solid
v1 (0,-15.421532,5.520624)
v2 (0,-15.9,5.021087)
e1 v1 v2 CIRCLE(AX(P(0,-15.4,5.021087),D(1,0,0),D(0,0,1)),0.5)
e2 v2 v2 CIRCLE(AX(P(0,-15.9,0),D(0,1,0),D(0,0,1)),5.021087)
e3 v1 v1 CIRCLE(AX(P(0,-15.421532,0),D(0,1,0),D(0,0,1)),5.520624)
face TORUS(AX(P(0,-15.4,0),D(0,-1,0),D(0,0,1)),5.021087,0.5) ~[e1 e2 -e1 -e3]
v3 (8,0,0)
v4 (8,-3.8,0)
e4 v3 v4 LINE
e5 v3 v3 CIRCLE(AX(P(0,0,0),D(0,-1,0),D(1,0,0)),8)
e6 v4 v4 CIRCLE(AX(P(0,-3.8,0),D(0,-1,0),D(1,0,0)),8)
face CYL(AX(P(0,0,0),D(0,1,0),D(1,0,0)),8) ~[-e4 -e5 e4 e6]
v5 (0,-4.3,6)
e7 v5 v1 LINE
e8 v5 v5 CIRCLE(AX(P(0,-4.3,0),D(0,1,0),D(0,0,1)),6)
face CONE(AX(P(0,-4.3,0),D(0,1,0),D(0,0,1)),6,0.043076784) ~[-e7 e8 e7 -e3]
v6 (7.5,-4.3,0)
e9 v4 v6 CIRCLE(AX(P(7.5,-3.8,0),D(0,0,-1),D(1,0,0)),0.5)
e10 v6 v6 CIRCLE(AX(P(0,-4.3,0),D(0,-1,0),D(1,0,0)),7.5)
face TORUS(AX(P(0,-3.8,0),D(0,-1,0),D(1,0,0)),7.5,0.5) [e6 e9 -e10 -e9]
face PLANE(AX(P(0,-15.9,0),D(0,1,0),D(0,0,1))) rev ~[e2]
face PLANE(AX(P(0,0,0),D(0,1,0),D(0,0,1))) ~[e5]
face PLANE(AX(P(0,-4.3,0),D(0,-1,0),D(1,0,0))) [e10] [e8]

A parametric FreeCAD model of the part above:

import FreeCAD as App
import Part
import Sketcher
from FreeCAD import Vector
Q = App.Units.Quantity


def edges_at(feature, points):
    """Names of the edges that pass closest to the given points."""
    edges = feature.Shape.Edges
    near = lambda p: min(range(len(edges)), key=lambda i: edges[i].distToShape(Part.Vertex(*p))[0])
    return sorted({f"Edge{near(p) + 1}" for p in points})


def add_polygon(sketch, points):
    """Adds a closed chain of lines whose ends are joined by coincident constraints."""
    first, n = sketch.GeometryCount, len(points)
    for a, b in zip(points, points[1:] + points[:1]):
        sketch.addGeometry(Part.LineSegment(App.Vector(*a, 0), App.Vector(*b, 0)), False)
    for i in range(n):
        sketch.addConstraint(Sketcher.Constraint("Coincident", first + i, 2, first + (i + 1) % n, 1))

doc = App.newDocument("Part")
params = doc.addObject("Spreadsheet::Sheet", "Params")
for row, (alias, value) in enumerate([
    ("sketch1_diameter", "16 mm"),
    ("pad1_length", "4.3 mm"),
    ("sketch2_height", "6 mm"),
    ("sketch2_width", "15.9 mm"),
    ("sketch2_width2", "4.3 mm"),
    ("sketch2_height2", "5.5 mm"),
    ("revolution_angle", "360 deg"),
    ("fillet_radius", "0.5 mm"),
], start=1):
    params.set(f"A{row}", alias)
    params.set(f"B{row}", "=" + value)
    params.setAlias(f"B{row}", alias)

body = doc.addObject("PartDesign::Body", "Body")

# Sketch on XZ plane
sketch1 = body.newObject("Sketcher::SketchObject", "Sketch")
sketch1.AttachmentSupport = (doc.getObject("XZ_Plane"), [""])
sketch1.MapMode = "FlatFace"
sketch1.addGeometry(Part.Circle(Vector(0, 0, 0), Vector(0, 0, 1), 8), False)
sketch1.addConstraint([
    Sketcher.Constraint("Coincident", 0, 3, -1, 1),
    Sketcher.Constraint("Diameter", 0, Q("16 mm")),
])
sketch1.setExpression("Constraints[1]", "Params.sketch1_diameter")
pad1 = body.newObject("PartDesign::Pad", "Pad")
pad1.Profile = sketch1
pad1.setExpression("Length", "Params.pad1_length")

# Sketch on YZ plane
sketch2 = body.newObject("Sketcher::SketchObject", "Sketch001")
sketch2.AttachmentSupport = (doc.getObject("YZ_Plane"), [""])
sketch2.MapMode = "FlatFace"
add_polygon(sketch2, [(-15.9, 0), (0, 0), (0, 6), (-4.3, 6), (-15.9, 5.5)])  # lines 0-4
sketch2.addConstraint([
    Sketcher.Constraint("Horizontal", 0),
    Sketcher.Constraint("Vertical", 1),
    Sketcher.Constraint("Horizontal", 2),
    Sketcher.Constraint("Vertical", 4),
    Sketcher.Constraint("Coincident", 0, 2, -1, 1),
    Sketcher.Constraint("DistanceY", 1, 1, 1, 2, Q("6 mm")),
    Sketcher.Constraint("DistanceX", 0, 1, 0, 2, Q("15.9 mm")),
    Sketcher.Constraint("DistanceX", 2, 2, 2, 1, Q("4.3 mm")),
    Sketcher.Constraint("DistanceY", 4, 2, 4, 1, Q("5.5 mm")),
])
sketch2.setExpression("Constraints[10]", "Params.sketch2_height")
sketch2.setExpression("Constraints[11]", "Params.sketch2_width")
sketch2.setExpression("Constraints[12]", "Params.sketch2_width2")
sketch2.setExpression("Constraints[13]", "Params.sketch2_height2")
revolution = body.newObject("PartDesign::Revolution", "Revolution")
revolution.Profile = sketch2
revolution.ReferenceAxis = (sketch2, ["H_Axis"])
revolution.setExpression("Angle", "Params.revolution_angle")
doc.recompute()

fillet = body.newObject("PartDesign::Fillet", "Fillet")
fillet.Base = (revolution, edges_at(revolution, [(0, -15.9, -5.5), (-8, -4.3, 0)]))
fillet.setExpression("Radius", "Params.fillet_radius")

doc.recompute()
